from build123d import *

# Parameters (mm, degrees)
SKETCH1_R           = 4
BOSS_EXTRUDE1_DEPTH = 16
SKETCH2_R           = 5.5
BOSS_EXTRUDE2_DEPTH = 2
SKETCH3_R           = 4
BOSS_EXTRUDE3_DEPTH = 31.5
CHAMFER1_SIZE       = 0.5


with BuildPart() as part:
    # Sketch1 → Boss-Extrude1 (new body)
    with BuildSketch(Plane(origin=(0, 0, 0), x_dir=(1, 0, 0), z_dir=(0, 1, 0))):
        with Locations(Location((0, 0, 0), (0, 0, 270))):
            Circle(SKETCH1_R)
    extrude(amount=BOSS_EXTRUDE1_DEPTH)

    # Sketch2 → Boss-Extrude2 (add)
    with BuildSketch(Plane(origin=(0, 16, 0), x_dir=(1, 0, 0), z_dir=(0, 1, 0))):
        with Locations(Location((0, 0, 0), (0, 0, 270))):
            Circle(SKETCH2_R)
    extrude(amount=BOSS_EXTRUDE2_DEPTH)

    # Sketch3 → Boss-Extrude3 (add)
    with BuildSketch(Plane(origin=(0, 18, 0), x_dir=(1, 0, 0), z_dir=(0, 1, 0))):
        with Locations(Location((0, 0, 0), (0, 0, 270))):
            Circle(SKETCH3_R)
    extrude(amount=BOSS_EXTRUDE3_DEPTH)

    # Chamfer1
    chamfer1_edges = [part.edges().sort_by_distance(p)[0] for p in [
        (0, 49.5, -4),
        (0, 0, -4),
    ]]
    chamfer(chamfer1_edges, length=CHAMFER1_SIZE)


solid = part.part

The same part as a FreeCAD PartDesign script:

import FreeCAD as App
import Part
import Sketcher
from FreeCAD import Vector
Q = App.Units.Quantity


def edges_at(feature, points):
    """Names of the edges that pass closest to the given points."""
    edges = feature.Shape.Edges
    near = lambda p: min(range(len(edges)), key=lambda i: edges[i].distToShape(Part.Vertex(*p))[0])
    return sorted({f"Edge{near(p) + 1}" for p in points})

doc = App.newDocument("Part")
body = doc.addObject("PartDesign::Body", "Body")

# Sketch on XZ plane
sketch1 = body.newObject("Sketcher::SketchObject", "Sketch")
sketch1.AttachmentSupport = (doc.getObject("XZ_Plane"), [""])
sketch1.MapMode = "FlatFace"
sketch1.addGeometry(Part.Circle(Vector(0, 0, 0), Vector(0, 0, 1), 4), False)
sketch1.addConstraint(Sketcher.Constraint("Coincident", 0, 3, -1, 1))
sketch1.addConstraint(Sketcher.Constraint("Diameter", 0, Q("8 mm")))
pad1 = body.newObject("PartDesign::Pad", "Pad")
pad1.Profile = sketch1
pad1.Length = 16
pad1.Reversed = True

# Sketch on XZ plane
sketch2 = body.newObject("Sketcher::SketchObject", "Sketch001")
sketch2.AttachmentSupport = (doc.getObject("XZ_Plane"), [""])
sketch2.MapMode = "FlatFace"
sketch2.AttachmentOffset = App.Placement(Vector(0, 0, -16), App.Rotation())
sketch2.addGeometry(Part.Circle(Vector(0, 0, 0), Vector(0, 0, 1), 6), False)
sketch2.addConstraint(Sketcher.Constraint("Coincident", 0, 3, -1, 1))
sketch2.addConstraint(Sketcher.Constraint("Diameter", 0, Q("11 mm")))
pad2 = body.newObject("PartDesign::Pad", "Pad001")
pad2.Profile = sketch2
pad2.Length = 2
pad2.Reversed = True

# Sketch on XZ plane
sketch3 = body.newObject("Sketcher::SketchObject", "Sketch002")
sketch3.AttachmentSupport = (doc.getObject("XZ_Plane"), [""])
sketch3.MapMode = "FlatFace"
sketch3.AttachmentOffset = App.Placement(Vector(0, 0, -18), App.Rotation())
sketch3.addGeometry(Part.Circle(Vector(0, 0, 0), Vector(0, 0, 1), 4), False)
sketch3.addConstraint(Sketcher.Constraint("Coincident", 0, 3, -1, 1))
sketch3.addConstraint(Sketcher.Constraint("Diameter", 0, Q("8 mm")))
pad3 = body.newObject("PartDesign::Pad", "Pad002")
pad3.Profile = sketch3
pad3.Length = 31.5
pad3.Reversed = True
doc.recompute()

chamfer = body.newObject("PartDesign::Chamfer", "Chamfer")
chamfer.Base = (pad3, edges_at(pad3, [(0, 49.5, -4), (0, 0, -4)]))
chamfer.Size = 0.5

doc.recompute()
